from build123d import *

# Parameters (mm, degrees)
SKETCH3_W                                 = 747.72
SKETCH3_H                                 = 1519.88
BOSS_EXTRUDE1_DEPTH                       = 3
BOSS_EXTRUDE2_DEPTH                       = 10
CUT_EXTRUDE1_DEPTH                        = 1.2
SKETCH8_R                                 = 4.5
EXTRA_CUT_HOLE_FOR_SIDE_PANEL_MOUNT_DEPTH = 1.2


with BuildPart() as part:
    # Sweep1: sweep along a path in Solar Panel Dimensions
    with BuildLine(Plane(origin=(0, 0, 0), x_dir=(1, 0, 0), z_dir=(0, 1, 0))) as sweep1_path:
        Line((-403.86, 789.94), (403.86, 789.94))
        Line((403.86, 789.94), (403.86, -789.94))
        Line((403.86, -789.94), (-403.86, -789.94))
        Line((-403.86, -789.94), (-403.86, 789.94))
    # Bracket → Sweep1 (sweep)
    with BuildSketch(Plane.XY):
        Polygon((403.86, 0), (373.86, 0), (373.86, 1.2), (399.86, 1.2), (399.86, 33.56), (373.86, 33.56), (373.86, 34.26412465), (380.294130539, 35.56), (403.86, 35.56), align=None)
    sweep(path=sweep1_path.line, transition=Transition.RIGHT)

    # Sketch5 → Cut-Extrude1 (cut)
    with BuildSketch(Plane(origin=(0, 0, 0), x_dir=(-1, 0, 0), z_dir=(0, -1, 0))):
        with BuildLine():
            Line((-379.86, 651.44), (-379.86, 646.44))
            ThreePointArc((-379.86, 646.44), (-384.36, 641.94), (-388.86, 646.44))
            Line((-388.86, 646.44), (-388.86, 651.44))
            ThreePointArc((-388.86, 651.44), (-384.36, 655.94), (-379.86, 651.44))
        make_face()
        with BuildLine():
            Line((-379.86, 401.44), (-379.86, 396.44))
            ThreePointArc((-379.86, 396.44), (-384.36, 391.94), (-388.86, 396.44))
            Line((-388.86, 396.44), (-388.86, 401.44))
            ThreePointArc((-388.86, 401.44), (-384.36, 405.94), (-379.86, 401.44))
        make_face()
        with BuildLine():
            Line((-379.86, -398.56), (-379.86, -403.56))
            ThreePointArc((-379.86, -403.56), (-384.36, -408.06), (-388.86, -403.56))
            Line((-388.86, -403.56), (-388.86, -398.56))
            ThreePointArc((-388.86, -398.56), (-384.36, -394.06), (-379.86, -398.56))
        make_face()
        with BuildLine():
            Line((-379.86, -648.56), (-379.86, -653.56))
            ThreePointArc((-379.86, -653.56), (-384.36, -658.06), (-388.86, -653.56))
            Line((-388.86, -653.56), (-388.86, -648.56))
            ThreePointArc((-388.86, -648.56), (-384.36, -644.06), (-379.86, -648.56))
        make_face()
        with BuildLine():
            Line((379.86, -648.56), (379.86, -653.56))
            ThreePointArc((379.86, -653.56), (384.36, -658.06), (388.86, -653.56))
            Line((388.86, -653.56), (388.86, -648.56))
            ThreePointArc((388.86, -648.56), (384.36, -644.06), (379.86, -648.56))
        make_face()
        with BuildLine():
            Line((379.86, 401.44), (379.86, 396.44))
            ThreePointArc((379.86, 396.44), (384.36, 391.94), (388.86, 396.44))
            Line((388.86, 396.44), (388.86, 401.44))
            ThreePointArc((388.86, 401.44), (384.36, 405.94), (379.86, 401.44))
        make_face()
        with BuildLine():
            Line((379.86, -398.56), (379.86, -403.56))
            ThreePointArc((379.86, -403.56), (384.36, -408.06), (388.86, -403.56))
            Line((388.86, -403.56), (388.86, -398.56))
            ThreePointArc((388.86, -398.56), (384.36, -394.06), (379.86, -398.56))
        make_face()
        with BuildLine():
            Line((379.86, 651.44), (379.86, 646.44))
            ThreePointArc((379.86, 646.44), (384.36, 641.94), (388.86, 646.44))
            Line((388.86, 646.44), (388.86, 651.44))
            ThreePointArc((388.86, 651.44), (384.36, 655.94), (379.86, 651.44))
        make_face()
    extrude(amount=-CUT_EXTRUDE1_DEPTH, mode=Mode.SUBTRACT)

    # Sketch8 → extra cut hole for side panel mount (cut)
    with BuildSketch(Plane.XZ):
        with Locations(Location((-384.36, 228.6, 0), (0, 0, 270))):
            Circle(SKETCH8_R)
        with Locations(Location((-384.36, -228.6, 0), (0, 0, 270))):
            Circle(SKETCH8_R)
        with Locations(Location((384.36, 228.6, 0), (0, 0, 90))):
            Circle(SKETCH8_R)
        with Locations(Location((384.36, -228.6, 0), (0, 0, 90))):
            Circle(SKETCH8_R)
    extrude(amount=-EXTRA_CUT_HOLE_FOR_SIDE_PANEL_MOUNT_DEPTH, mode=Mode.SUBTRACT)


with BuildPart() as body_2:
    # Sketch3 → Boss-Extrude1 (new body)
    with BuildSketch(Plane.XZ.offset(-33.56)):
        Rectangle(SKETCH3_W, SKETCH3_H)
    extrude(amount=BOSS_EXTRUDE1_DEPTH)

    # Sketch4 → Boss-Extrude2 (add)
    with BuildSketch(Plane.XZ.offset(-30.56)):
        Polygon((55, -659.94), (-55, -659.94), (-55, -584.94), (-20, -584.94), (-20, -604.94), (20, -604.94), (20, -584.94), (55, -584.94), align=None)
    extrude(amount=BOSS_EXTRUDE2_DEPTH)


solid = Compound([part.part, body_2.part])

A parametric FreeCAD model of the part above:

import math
import FreeCAD as App
import Part
import Sketcher
from FreeCAD import Vector
Q = App.Units.Quantity

doc = App.newDocument("Part")
body = doc.addObject("PartDesign::Body", "Body")

# Sketch on XY plane
sketch1 = body.newObject("Sketcher::SketchObject", "Sketch")
sketch1.AttachmentSupport = (doc.getObject("XY_Plane"), [""])
sketch1.MapMode = "FlatFace"
sketch1.addGeometry([
    Part.LineSegment(Vector(373.9, 0, 0), Vector(403.9, 0, 0)),  # 0
    Part.LineSegment(Vector(403.9, 0, 0), Vector(403.9, 35.6, 0)),  # 1
    Part.LineSegment(Vector(403.9, 35.6, 0), Vector(380.3, 35.6, 0)),  # 2
    Part.LineSegment(Vector(380.3, 35.6, 0), Vector(373.9, 34.3, 0)),  # 3
    Part.LineSegment(Vector(373.9, 34.3, 0), Vector(373.9, 33.6, 0)),  # 4
    Part.LineSegment(Vector(373.9, 33.6, 0), Vector(399.9, 33.6, 0)),  # 5
    Part.LineSegment(Vector(399.9, 33.6, 0), Vector(399.9, 1.2, 0)),  # 6
    Part.LineSegment(Vector(399.9, 1.2, 0), Vector(373.9, 1.2, 0)),  # 7
    Part.LineSegment(Vector(373.9, 1.2, 0), Vector(373.9, 0, 0)),  # 8
], False)
sketch1.addConstraint([
    Sketcher.Constraint("Coincident", 0, 2, 1, 1),
    Sketcher.Constraint("Coincident", 1, 2, 2, 1),
    Sketcher.Constraint("Coincident", 2, 2, 3, 1),
    Sketcher.Constraint("Coincident", 3, 2, 4, 1),
    Sketcher.Constraint("Coincident", 4, 2, 5, 1),
    Sketcher.Constraint("Coincident", 5, 2, 6, 1),
    Sketcher.Constraint("Coincident", 6, 2, 7, 1),
    Sketcher.Constraint("Coincident", 7, 2, 8, 1),
    Sketcher.Constraint("Coincident", 8, 2, 0, 1),
    Sketcher.Constraint("Horizontal", 0),
    Sketcher.Constraint("Vertical", 1),
    Sketcher.Constraint("Horizontal", 2),
    Sketcher.Constraint("Vertical", 4),
    Sketcher.Constraint("Horizontal", 5),
    Sketcher.Constraint("Vertical", 6),
    Sketcher.Constraint("Horizontal", 7),
    Sketcher.Constraint("Vertical", 8),
    Sketcher.Constraint("PointOnObject", 0, 2, -1),
    Sketcher.Constraint("Vertical", 4, 2, 7, 2),
    Sketcher.Constraint("DistanceX", 0, 1, 0, 2, Q("30 mm")),
    Sketcher.Constraint("DistanceX", 5, 1, 5, 2, Q("26 mm")),
    Sketcher.Constraint("DistanceY", 8, 2, 8, 1, Q("1.2 mm")),
    Sketcher.Constraint("DistanceY", 4, 2, 2, 2, Q("2 mm")),
    Sketcher.Constraint("DistanceY", 1, 1, 1, 2, Q("35.56 mm")),
    Sketcher.Constraint("DistanceX", -1, 1, 0, 2, Q("403.86 mm")),
    Sketcher.Constraint("DistanceX", 2, 2, 2, 1, Q("23.565869 mm")),
    Sketcher.Constraint("DistanceY", 4, 2, 4, 1, Q("0.704125 mm")),
])

# Sketch on XZ plane
sketch2 = body.newObject("Sketcher::SketchObject", "Sketch001")
sketch2.AttachmentSupport = (doc.getObject("XZ_Plane"), [""])
sketch2.MapMode = "FlatFace"
sketch2.addGeometry([
    Part.LineSegment(Vector(-404, -790, 0), Vector(404, -790, 0)),
    Part.LineSegment(Vector(404, -790, 0), Vector(404, 790, 0)),
    Part.LineSegment(Vector(404, 790, 0), Vector(-404, 790, 0)),
    Part.LineSegment(Vector(-404, 790, 0), Vector(-404, -790, 0)),
], False)
sketch2.addConstraint([
    Sketcher.Constraint("Coincident", 0, 2, 1, 1),
    Sketcher.Constraint("Coincident", 1, 2, 2, 1),
    Sketcher.Constraint("Coincident", 2, 2, 3, 1),
    Sketcher.Constraint("Coincident", 3, 2, 0, 1),
    Sketcher.Constraint("Horizontal", 0),
    Sketcher.Constraint("Vertical", 1),
    Sketcher.Constraint("Horizontal", 2),
    Sketcher.Constraint("Vertical", 3),
    Sketcher.Constraint("Symmetric", 0, 2, 2, 2, -1, 1),
    Sketcher.Constraint("DistanceX", 0, 1, 0, 2, Q("807.72 mm")),
    Sketcher.Constraint("DistanceY", 1, 1, 1, 2, Q("1579.88 mm")),
])
doc.recompute()

additivepipe = body.newObject("PartDesign::AdditivePipe", "AdditivePipe")
additivepipe.Profile = sketch1
additivepipe.Spine = (sketch2, ["Edge1", "Edge2", "Edge3", "Edge4"])
additivepipe.Transition = "Right corner"

# Sketch on XZ plane
sketch3 = body.newObject("Sketcher::SketchObject", "Sketch002")
sketch3.AttachmentSupport = (doc.getObject("XZ_Plane"), [""])
sketch3.MapMode = "FlatFace"
sketch3.addGeometry([
    Part.LineSegment(Vector(379.9, -646.4, 0), Vector(379.9, -651.4, 0)),  # 0
    Part.ArcOfCircle(Part.Circle(Vector(384.4, -651.4, 0), Vector(0, 0, 1), 4.5), math.radians(180), math.radians(360)),  # 1
    Part.LineSegment(Vector(388.9, -651.4, 0), Vector(388.9, -646.4, 0)),  # 2
    Part.ArcOfCircle(Part.Circle(Vector(384.4, -646.4, 0), Vector(0, 0, 1), 4.5), math.radians(0), math.radians(180)),  # 3
    Part.LineSegment(Vector(379.9, -396.4, 0), Vector(379.9, -401.4, 0)),  # 4
    Part.ArcOfCircle(Part.Circle(Vector(384.4, -401.4, 0), Vector(0, 0, 1), 4.5), math.radians(180), math.radians(360)),  # 5
    Part.LineSegment(Vector(388.9, -401.4, 0), Vector(388.9, -396.4, 0)),  # 6
    Part.ArcOfCircle(Part.Circle(Vector(384.4, -396.4, 0), Vector(0, 0, 1), 4.5), math.radians(0), math.radians(180)),  # 7
    Part.LineSegment(Vector(379.9, 403.6, 0), Vector(379.9, 398.6, 0)),  # 8
    Part.ArcOfCircle(Part.Circle(Vector(384.4, 398.6, 0), Vector(0, 0, 1), 4.5), math.radians(180), math.radians(360)),  # 9
    Part.LineSegment(Vector(388.9, 398.6, 0), Vector(388.9, 403.6, 0)),  # 10
    Part.ArcOfCircle(Part.Circle(Vector(384.4, 403.6, 0), Vector(0, 0, 1), 4.5), math.radians(0), math.radians(180)),  # 11
    Part.LineSegment(Vector(379.9, 653.6, 0), Vector(379.9, 648.6, 0)),  # 12
    Part.ArcOfCircle(Part.Circle(Vector(384.4, 648.6, 0), Vector(0, 0, 1), 4.5), math.radians(180), math.radians(360)),  # 13
    Part.LineSegment(Vector(388.9, 648.6, 0), Vector(388.9, 653.6, 0)),  # 14
    Part.ArcOfCircle(Part.Circle(Vector(384.4, 653.6, 0), Vector(0, 0, 1), 4.5), math.radians(0), math.radians(180)),  # 15
    Part.LineSegment(Vector(-379.9, 648.6, 0), Vector(-379.9, 653.6, 0)),  # 16
    Part.ArcOfCircle(Part.Circle(Vector(-384.4, 653.6, 0), Vector(0, 0, 1), 4.5), math.radians(0), math.radians(180)),  # 17
    Part.LineSegment(Vector(-388.9, 653.6, 0), Vector(-388.9, 648.6, 0)),  # 18
    Part.ArcOfCircle(Part.Circle(Vector(-384.4, 648.6, 0), Vector(0, 0, 1), 4.5), math.radians(180), math.radians(360)),  # 19
    Part.LineSegment(Vector(-379.9, -401.4, 0), Vector(-379.9, -396.4, 0)),  # 20
    Part.ArcOfCircle(Part.Circle(Vector(-384.4, -396.4, 0), Vector(0, 0, 1), 4.5), math.radians(0), math.radians(180)),  # 21
    Part.LineSegment(Vector(-388.9, -396.4, 0), Vector(-388.9, -401.4, 0)),  # 22
    Part.ArcOfCircle(Part.Circle(Vector(-384.4, -401.4, 0), Vector(0, 0, 1), 4.5), math.radians(180), math.radians(360)),  # 23
    Part.LineSegment(Vector(-379.9, 398.6, 0), Vector(-379.9, 403.6, 0)),  # 24
    Part.ArcOfCircle(Part.Circle(Vector(-384.4, 403.6, 0), Vector(0, 0, 1), 4.5), math.radians(0), math.radians(180)),  # 25
    Part.LineSegment(Vector(-388.9, 403.6, 0), Vector(-388.9, 398.6, 0)),  # 26
    Part.ArcOfCircle(Part.Circle(Vector(-384.4, 398.6, 0), Vector(0, 0, 1), 4.5), math.radians(180), math.radians(360)),  # 27
    Part.LineSegment(Vector(-379.9, -651.4, 0), Vector(-379.9, -646.4, 0)),  # 28
    Part.ArcOfCircle(Part.Circle(Vector(-384.4, -646.4, 0), Vector(0, 0, 1), 4.5), math.radians(0), math.radians(180)),  # 29
    Part.LineSegment(Vector(-388.9, -646.4, 0), Vector(-388.9, -651.4, 0)),  # 30
    Part.ArcOfCircle(Part.Circle(Vector(-384.4, -651.4, 0), Vector(0, 0, 1), 4.5), math.radians(180), math.radians(360)),  # 31
], False)
sketch3.addConstraint([
    Sketcher.Constraint("Tangent", 0, 2, 1, 1),
    Sketcher.Constraint("Tangent", 1, 2, 2, 1),
    Sketcher.Constraint("Tangent", 2, 2, 3, 1),
    Sketcher.Constraint("Tangent", 3, 2, 0, 1),
    Sketcher.Constraint("Tangent", 4, 2, 5, 1),
    Sketcher.Constraint("Tangent", 5, 2, 6, 1),
    Sketcher.Constraint("Tangent", 6, 2, 7, 1),
    Sketcher.Constraint("Tangent", 7, 2, 4, 1),
    Sketcher.Constraint("Tangent", 8, 2, 9, 1),
    Sketcher.Constraint("Tangent", 9, 2, 10, 1),
    Sketcher.Constraint("Tangent", 10, 2, 11, 1),
    Sketcher.Constraint("Tangent", 11, 2, 8, 1),
    Sketcher.Constraint("Tangent", 12, 2, 13, 1),
    Sketcher.Constraint("Tangent", 13, 2, 14, 1),
    Sketcher.Constraint("Tangent", 14, 2, 15, 1),
    Sketcher.Constraint("Tangent", 15, 2, 12, 1),
    Sketcher.Constraint("Tangent", 16, 2, 17, 1),
    Sketcher.Constraint("Tangent", 17, 2, 18, 1),
    Sketcher.Constraint("Tangent", 18, 2, 19, 1),
    Sketcher.Constraint("Tangent", 19, 2, 16, 1),
    Sketcher.Constraint("Tangent", 20, 2, 21, 1),
    Sketcher.Constraint("Tangent", 21, 2, 22, 1),
    Sketcher.Constraint("Tangent", 22, 2, 23, 1),
    Sketcher.Constraint("Tangent", 23, 2, 20, 1),
    Sketcher.Constraint("Tangent", 24, 2, 25, 1),
    Sketcher.Constraint("Tangent", 25, 2, 26, 1),
    Sketcher.Constraint("Tangent", 26, 2, 27, 1),
    Sketcher.Constraint("Tangent", 27, 2, 24, 1),
    Sketcher.Constraint("Tangent", 28, 2, 29, 1),
    Sketcher.Constraint("Tangent", 29, 2, 30, 1),
    Sketcher.Constraint("Tangent", 30, 2, 31, 1),
    Sketcher.Constraint("Tangent", 31, 2, 28, 1),
    Sketcher.Constraint("Vertical", 0),
    Sketcher.Constraint("Vertical", 2),
    Sketcher.Constraint("Vertical", 4),
    Sketcher.Constraint("Vertical", 6),
    Sketcher.Constraint("Vertical", 8),
    Sketcher.Constraint("Vertical", 10),
    Sketcher.Constraint("Vertical", 12),
    Sketcher.Constraint("Vertical", 14),
    Sketcher.Constraint("Vertical", 16),
    Sketcher.Constraint("Vertical", 18),
    Sketcher.Constraint("Vertical", 20),
    Sketcher.Constraint("Vertical", 22),
    Sketcher.Constraint("Vertical", 24),
    Sketcher.Constraint("Vertical", 26),
    Sketcher.Constraint("Vertical", 28),
    Sketcher.Constraint("Vertical", 30),
    Sketcher.Constraint("Equal", 3, 5),
    Sketcher.Constraint("Equal", 7, 9),
    Sketcher.Constraint("Equal", 11, 13),
    Sketcher.Constraint("Equal", 15, 17),
    Sketcher.Constraint("Equal", 19, 21),
    Sketcher.Constraint("Equal", 23, 25),
    Sketcher.Constraint("Equal", 27, 29),
    Sketcher.Constraint("Symmetric", 15, 3, 17, 3, -2),
    Sketcher.Constraint("Symmetric", 7, 3, 21, 3, -2),
    Sketcher.Constraint("Symmetric", 11, 3, 25, 3, -2),
    Sketcher.Constraint("Symmetric", 3, 3, 29, 3, -2),
    Sketcher.Constraint("Horizontal", 13, 3, 19, 3),
    Sketcher.Constraint("Horizontal", 5, 3, 23, 3),
    Sketcher.Constraint("Horizontal", 9, 3, 27, 3),
    Sketcher.Constraint("Horizontal", 1, 3, 31, 3),
    Sketcher.Constraint("Vertical", 3, 3, 5, 3),
    Sketcher.Constraint("Vertical", 7, 3, 9, 3),
    Sketcher.Constraint("Vertical", 11, 3, 13, 3),
    Sketcher.Constraint("Equal", 2, 4),
    Sketcher.Constraint("Equal", 6, 8),
    Sketcher.Constraint("Equal", 10, 12),
    Sketcher.Constraint("Radius", 1, Q("4.5 mm")),
    Sketcher.Constraint("DistanceY", 0, 2, 0, 1, Q("5 mm")),
    Sketcher.Constraint("DistanceY", 3, 3, 5, 3, Q("245 mm")),
    Sketcher.Constraint("DistanceY", 7, 3, 9, 3, Q("795 mm")),
    Sketcher.Constraint("DistanceY", 11, 3, 13, 3, Q("245 mm")),
    Sketcher.Constraint("DistanceX", -1, 1, 1, 3, Q("384.36 mm")),
    Sketcher.Constraint("DistanceY", 1, 3, -1, 1, Q("651.44 mm")),
])
pocket1 = body.newObject("PartDesign::Pocket", "Pocket")
pocket1.Profile = sketch3
pocket1.Length = 1.2

# Sketch on XZ plane
sketch4 = body.newObject("Sketcher::SketchObject", "Sketch003")
sketch4.AttachmentSupport = (doc.getObject("XZ_Plane"), [""])
sketch4.MapMode = "FlatFace"
sketch4.addGeometry([
    Part.Circle(Vector(-384.4, 228.6, 0), Vector(0, 0, 1), 4.5),
    Part.Circle(Vector(-384.4, -228.6, 0), Vector(0, 0, 1), 4.5),
    Part.Circle(Vector(384.4, 228.6, 0), Vector(0, 0, 1), 4.5),
    Part.Circle(Vector(384.4, -228.6, 0), Vector(0, 0, 1), 4.5),
], False)
sketch4.addConstraint([
    Sketcher.Constraint("Equal", 0, 1),
    Sketcher.Constraint("Equal", 1, 2),
    Sketcher.Constraint("Equal", 2, 3),
    Sketcher.Constraint("Symmetric", 1, 3, 2, 3, -1, 1),
    Sketcher.Constraint("Symmetric", 0, 3, 3, 3, -1, 1),
    Sketcher.Constraint("Symmetric", 0, 3, 2, 3, -2),
    Sketcher.Constraint("Diameter", 0, Q("9 mm")),
    Sketcher.Constraint("DistanceY", -1, 1, 0, 3, Q("228.6 mm")),
    Sketcher.Constraint("DistanceX", 0, 3, -1, 1, Q("384.36 mm")),
])
pocket2 = body.newObject("PartDesign::Pocket", "Pocket001")
pocket2.Profile = sketch4
pocket2.Length = 1.2
body2 = doc.addObject("PartDesign::Body", "Body001")

# Sketch on XZ plane
sketch5 = body2.newObject("Sketcher::SketchObject", "Sketch004")
sketch5.AttachmentSupport = (doc.getObject("XZ_Plane001"), [""])
sketch5.MapMode = "FlatFace"
sketch5.AttachmentOffset = App.Placement(Vector(0, 0, -33.56), App.Rotation())
sketch5.addGeometry([
    Part.LineSegment(Vector(-374, 760, 0), Vector(-374, -760, 0)),
    Part.LineSegment(Vector(-374, -760, 0), Vector(374, -760, 0)),
    Part.LineSegment(Vector(374, -760, 0), Vector(374, 760, 0)),
    Part.LineSegment(Vector(374, 760, 0), Vector(-374, 760, 0)),
], False)
sketch5.addConstraint([
    Sketcher.Constraint("Coincident", 0, 2, 1, 1),
    Sketcher.Constraint("Coincident", 1, 2, 2, 1),
    Sketcher.Constraint("Coincident", 2, 2, 3, 1),
    Sketcher.Constraint("Coincident", 3, 2, 0, 1),
    Sketcher.Constraint("Vertical", 0),
    Sketcher.Constraint("Horizontal", 1),
    Sketcher.Constraint("Vertical", 2),
    Sketcher.Constraint("Horizontal", 3),
    Sketcher.Constraint("Symmetric", 0, 2, 2, 2, -1, 1),
    Sketcher.Constraint("DistanceX", 1, 1, 1, 2, Q("747.72 mm")),
    Sketcher.Constraint("DistanceY", 0, 2, 0, 1, Q("1519.88 mm")),
])
pad1 = body2.newObject("PartDesign::Pad", "Pad")
pad1.Profile = sketch5
pad1.Length = 3

# Sketch on XZ plane
sketch6 = body2.newObject("Sketcher::SketchObject", "Sketch005")
sketch6.AttachmentSupport = (doc.getObject("XZ_Plane001"), [""])
sketch6.MapMode = "FlatFace"
sketch6.AttachmentOffset = App.Placement(Vector(0, 0, -30.56), App.Rotation())
sketch6.addGeometry([
    Part.LineSegment(Vector(-55, -660, 0), Vector(55, -660, 0)),  # 0
    Part.LineSegment(Vector(55, -660, 0), Vector(55, -585, 0)),  # 1
    Part.LineSegment(Vector(55, -585, 0), Vector(20, -585, 0)),  # 2
    Part.LineSegment(Vector(20, -585, 0), Vector(20, -605, 0)),  # 3
    Part.LineSegment(Vector(20, -605, 0), Vector(-20, -605, 0)),  # 4
    Part.LineSegment(Vector(-20, -605, 0), Vector(-20, -585, 0)),  # 5
    Part.LineSegment(Vector(-20, -585, 0), Vector(-55, -585, 0)),  # 6
    Part.LineSegment(Vector(-55, -585, 0), Vector(-55, -660, 0)),  # 7
], False)
sketch6.addConstraint([
    Sketcher.Constraint("Coincident", 0, 2, 1, 1),
    Sketcher.Constraint("Coincident", 1, 2, 2, 1),
    Sketcher.Constraint("Coincident", 2, 2, 3, 1),
    Sketcher.Constraint("Coincident", 3, 2, 4, 1),
    Sketcher.Constraint("Coincident", 4, 2, 5, 1),
    Sketcher.Constraint("Coincident", 5, 2, 6, 1),
    Sketcher.Constraint("Coincident", 6, 2, 7, 1),
    Sketcher.Constraint("Coincident", 7, 2, 0, 1),
    Sketcher.Constraint("Horizontal", 0),
    Sketcher.Constraint("Vertical", 1),
    Sketcher.Constraint("Horizontal", 2),
    Sketcher.Constraint("Vertical", 3),
    Sketcher.Constraint("Horizontal", 4),
    Sketcher.Constraint("Vertical", 5),
    Sketcher.Constraint("Horizontal", 6),
    Sketcher.Constraint("Vertical", 7),
    Sketcher.Constraint("Symmetric", 2, 2, 5, 2, -2),
    Sketcher.Constraint("Equal", 2, 6),
    Sketcher.Constraint("DistanceX", 0, 1, 0, 2, Q("110 mm")),
    Sketcher.Constraint("DistanceX", 2, 2, 2, 1, Q("35 mm")),
    Sketcher.Constraint("DistanceY", 1, 1, 1, 2, Q("75 mm")),
    Sketcher.Constraint("DistanceY", 3, 2, 3, 1, Q("20 mm")),
    Sketcher.Constraint("DistanceY", 0, 2, -1, 1, Q("659.94 mm")),
])
pad2 = body2.newObject("PartDesign::Pad", "Pad001")
pad2.Profile = sketch6
pad2.Length = 10

doc.recompute()
